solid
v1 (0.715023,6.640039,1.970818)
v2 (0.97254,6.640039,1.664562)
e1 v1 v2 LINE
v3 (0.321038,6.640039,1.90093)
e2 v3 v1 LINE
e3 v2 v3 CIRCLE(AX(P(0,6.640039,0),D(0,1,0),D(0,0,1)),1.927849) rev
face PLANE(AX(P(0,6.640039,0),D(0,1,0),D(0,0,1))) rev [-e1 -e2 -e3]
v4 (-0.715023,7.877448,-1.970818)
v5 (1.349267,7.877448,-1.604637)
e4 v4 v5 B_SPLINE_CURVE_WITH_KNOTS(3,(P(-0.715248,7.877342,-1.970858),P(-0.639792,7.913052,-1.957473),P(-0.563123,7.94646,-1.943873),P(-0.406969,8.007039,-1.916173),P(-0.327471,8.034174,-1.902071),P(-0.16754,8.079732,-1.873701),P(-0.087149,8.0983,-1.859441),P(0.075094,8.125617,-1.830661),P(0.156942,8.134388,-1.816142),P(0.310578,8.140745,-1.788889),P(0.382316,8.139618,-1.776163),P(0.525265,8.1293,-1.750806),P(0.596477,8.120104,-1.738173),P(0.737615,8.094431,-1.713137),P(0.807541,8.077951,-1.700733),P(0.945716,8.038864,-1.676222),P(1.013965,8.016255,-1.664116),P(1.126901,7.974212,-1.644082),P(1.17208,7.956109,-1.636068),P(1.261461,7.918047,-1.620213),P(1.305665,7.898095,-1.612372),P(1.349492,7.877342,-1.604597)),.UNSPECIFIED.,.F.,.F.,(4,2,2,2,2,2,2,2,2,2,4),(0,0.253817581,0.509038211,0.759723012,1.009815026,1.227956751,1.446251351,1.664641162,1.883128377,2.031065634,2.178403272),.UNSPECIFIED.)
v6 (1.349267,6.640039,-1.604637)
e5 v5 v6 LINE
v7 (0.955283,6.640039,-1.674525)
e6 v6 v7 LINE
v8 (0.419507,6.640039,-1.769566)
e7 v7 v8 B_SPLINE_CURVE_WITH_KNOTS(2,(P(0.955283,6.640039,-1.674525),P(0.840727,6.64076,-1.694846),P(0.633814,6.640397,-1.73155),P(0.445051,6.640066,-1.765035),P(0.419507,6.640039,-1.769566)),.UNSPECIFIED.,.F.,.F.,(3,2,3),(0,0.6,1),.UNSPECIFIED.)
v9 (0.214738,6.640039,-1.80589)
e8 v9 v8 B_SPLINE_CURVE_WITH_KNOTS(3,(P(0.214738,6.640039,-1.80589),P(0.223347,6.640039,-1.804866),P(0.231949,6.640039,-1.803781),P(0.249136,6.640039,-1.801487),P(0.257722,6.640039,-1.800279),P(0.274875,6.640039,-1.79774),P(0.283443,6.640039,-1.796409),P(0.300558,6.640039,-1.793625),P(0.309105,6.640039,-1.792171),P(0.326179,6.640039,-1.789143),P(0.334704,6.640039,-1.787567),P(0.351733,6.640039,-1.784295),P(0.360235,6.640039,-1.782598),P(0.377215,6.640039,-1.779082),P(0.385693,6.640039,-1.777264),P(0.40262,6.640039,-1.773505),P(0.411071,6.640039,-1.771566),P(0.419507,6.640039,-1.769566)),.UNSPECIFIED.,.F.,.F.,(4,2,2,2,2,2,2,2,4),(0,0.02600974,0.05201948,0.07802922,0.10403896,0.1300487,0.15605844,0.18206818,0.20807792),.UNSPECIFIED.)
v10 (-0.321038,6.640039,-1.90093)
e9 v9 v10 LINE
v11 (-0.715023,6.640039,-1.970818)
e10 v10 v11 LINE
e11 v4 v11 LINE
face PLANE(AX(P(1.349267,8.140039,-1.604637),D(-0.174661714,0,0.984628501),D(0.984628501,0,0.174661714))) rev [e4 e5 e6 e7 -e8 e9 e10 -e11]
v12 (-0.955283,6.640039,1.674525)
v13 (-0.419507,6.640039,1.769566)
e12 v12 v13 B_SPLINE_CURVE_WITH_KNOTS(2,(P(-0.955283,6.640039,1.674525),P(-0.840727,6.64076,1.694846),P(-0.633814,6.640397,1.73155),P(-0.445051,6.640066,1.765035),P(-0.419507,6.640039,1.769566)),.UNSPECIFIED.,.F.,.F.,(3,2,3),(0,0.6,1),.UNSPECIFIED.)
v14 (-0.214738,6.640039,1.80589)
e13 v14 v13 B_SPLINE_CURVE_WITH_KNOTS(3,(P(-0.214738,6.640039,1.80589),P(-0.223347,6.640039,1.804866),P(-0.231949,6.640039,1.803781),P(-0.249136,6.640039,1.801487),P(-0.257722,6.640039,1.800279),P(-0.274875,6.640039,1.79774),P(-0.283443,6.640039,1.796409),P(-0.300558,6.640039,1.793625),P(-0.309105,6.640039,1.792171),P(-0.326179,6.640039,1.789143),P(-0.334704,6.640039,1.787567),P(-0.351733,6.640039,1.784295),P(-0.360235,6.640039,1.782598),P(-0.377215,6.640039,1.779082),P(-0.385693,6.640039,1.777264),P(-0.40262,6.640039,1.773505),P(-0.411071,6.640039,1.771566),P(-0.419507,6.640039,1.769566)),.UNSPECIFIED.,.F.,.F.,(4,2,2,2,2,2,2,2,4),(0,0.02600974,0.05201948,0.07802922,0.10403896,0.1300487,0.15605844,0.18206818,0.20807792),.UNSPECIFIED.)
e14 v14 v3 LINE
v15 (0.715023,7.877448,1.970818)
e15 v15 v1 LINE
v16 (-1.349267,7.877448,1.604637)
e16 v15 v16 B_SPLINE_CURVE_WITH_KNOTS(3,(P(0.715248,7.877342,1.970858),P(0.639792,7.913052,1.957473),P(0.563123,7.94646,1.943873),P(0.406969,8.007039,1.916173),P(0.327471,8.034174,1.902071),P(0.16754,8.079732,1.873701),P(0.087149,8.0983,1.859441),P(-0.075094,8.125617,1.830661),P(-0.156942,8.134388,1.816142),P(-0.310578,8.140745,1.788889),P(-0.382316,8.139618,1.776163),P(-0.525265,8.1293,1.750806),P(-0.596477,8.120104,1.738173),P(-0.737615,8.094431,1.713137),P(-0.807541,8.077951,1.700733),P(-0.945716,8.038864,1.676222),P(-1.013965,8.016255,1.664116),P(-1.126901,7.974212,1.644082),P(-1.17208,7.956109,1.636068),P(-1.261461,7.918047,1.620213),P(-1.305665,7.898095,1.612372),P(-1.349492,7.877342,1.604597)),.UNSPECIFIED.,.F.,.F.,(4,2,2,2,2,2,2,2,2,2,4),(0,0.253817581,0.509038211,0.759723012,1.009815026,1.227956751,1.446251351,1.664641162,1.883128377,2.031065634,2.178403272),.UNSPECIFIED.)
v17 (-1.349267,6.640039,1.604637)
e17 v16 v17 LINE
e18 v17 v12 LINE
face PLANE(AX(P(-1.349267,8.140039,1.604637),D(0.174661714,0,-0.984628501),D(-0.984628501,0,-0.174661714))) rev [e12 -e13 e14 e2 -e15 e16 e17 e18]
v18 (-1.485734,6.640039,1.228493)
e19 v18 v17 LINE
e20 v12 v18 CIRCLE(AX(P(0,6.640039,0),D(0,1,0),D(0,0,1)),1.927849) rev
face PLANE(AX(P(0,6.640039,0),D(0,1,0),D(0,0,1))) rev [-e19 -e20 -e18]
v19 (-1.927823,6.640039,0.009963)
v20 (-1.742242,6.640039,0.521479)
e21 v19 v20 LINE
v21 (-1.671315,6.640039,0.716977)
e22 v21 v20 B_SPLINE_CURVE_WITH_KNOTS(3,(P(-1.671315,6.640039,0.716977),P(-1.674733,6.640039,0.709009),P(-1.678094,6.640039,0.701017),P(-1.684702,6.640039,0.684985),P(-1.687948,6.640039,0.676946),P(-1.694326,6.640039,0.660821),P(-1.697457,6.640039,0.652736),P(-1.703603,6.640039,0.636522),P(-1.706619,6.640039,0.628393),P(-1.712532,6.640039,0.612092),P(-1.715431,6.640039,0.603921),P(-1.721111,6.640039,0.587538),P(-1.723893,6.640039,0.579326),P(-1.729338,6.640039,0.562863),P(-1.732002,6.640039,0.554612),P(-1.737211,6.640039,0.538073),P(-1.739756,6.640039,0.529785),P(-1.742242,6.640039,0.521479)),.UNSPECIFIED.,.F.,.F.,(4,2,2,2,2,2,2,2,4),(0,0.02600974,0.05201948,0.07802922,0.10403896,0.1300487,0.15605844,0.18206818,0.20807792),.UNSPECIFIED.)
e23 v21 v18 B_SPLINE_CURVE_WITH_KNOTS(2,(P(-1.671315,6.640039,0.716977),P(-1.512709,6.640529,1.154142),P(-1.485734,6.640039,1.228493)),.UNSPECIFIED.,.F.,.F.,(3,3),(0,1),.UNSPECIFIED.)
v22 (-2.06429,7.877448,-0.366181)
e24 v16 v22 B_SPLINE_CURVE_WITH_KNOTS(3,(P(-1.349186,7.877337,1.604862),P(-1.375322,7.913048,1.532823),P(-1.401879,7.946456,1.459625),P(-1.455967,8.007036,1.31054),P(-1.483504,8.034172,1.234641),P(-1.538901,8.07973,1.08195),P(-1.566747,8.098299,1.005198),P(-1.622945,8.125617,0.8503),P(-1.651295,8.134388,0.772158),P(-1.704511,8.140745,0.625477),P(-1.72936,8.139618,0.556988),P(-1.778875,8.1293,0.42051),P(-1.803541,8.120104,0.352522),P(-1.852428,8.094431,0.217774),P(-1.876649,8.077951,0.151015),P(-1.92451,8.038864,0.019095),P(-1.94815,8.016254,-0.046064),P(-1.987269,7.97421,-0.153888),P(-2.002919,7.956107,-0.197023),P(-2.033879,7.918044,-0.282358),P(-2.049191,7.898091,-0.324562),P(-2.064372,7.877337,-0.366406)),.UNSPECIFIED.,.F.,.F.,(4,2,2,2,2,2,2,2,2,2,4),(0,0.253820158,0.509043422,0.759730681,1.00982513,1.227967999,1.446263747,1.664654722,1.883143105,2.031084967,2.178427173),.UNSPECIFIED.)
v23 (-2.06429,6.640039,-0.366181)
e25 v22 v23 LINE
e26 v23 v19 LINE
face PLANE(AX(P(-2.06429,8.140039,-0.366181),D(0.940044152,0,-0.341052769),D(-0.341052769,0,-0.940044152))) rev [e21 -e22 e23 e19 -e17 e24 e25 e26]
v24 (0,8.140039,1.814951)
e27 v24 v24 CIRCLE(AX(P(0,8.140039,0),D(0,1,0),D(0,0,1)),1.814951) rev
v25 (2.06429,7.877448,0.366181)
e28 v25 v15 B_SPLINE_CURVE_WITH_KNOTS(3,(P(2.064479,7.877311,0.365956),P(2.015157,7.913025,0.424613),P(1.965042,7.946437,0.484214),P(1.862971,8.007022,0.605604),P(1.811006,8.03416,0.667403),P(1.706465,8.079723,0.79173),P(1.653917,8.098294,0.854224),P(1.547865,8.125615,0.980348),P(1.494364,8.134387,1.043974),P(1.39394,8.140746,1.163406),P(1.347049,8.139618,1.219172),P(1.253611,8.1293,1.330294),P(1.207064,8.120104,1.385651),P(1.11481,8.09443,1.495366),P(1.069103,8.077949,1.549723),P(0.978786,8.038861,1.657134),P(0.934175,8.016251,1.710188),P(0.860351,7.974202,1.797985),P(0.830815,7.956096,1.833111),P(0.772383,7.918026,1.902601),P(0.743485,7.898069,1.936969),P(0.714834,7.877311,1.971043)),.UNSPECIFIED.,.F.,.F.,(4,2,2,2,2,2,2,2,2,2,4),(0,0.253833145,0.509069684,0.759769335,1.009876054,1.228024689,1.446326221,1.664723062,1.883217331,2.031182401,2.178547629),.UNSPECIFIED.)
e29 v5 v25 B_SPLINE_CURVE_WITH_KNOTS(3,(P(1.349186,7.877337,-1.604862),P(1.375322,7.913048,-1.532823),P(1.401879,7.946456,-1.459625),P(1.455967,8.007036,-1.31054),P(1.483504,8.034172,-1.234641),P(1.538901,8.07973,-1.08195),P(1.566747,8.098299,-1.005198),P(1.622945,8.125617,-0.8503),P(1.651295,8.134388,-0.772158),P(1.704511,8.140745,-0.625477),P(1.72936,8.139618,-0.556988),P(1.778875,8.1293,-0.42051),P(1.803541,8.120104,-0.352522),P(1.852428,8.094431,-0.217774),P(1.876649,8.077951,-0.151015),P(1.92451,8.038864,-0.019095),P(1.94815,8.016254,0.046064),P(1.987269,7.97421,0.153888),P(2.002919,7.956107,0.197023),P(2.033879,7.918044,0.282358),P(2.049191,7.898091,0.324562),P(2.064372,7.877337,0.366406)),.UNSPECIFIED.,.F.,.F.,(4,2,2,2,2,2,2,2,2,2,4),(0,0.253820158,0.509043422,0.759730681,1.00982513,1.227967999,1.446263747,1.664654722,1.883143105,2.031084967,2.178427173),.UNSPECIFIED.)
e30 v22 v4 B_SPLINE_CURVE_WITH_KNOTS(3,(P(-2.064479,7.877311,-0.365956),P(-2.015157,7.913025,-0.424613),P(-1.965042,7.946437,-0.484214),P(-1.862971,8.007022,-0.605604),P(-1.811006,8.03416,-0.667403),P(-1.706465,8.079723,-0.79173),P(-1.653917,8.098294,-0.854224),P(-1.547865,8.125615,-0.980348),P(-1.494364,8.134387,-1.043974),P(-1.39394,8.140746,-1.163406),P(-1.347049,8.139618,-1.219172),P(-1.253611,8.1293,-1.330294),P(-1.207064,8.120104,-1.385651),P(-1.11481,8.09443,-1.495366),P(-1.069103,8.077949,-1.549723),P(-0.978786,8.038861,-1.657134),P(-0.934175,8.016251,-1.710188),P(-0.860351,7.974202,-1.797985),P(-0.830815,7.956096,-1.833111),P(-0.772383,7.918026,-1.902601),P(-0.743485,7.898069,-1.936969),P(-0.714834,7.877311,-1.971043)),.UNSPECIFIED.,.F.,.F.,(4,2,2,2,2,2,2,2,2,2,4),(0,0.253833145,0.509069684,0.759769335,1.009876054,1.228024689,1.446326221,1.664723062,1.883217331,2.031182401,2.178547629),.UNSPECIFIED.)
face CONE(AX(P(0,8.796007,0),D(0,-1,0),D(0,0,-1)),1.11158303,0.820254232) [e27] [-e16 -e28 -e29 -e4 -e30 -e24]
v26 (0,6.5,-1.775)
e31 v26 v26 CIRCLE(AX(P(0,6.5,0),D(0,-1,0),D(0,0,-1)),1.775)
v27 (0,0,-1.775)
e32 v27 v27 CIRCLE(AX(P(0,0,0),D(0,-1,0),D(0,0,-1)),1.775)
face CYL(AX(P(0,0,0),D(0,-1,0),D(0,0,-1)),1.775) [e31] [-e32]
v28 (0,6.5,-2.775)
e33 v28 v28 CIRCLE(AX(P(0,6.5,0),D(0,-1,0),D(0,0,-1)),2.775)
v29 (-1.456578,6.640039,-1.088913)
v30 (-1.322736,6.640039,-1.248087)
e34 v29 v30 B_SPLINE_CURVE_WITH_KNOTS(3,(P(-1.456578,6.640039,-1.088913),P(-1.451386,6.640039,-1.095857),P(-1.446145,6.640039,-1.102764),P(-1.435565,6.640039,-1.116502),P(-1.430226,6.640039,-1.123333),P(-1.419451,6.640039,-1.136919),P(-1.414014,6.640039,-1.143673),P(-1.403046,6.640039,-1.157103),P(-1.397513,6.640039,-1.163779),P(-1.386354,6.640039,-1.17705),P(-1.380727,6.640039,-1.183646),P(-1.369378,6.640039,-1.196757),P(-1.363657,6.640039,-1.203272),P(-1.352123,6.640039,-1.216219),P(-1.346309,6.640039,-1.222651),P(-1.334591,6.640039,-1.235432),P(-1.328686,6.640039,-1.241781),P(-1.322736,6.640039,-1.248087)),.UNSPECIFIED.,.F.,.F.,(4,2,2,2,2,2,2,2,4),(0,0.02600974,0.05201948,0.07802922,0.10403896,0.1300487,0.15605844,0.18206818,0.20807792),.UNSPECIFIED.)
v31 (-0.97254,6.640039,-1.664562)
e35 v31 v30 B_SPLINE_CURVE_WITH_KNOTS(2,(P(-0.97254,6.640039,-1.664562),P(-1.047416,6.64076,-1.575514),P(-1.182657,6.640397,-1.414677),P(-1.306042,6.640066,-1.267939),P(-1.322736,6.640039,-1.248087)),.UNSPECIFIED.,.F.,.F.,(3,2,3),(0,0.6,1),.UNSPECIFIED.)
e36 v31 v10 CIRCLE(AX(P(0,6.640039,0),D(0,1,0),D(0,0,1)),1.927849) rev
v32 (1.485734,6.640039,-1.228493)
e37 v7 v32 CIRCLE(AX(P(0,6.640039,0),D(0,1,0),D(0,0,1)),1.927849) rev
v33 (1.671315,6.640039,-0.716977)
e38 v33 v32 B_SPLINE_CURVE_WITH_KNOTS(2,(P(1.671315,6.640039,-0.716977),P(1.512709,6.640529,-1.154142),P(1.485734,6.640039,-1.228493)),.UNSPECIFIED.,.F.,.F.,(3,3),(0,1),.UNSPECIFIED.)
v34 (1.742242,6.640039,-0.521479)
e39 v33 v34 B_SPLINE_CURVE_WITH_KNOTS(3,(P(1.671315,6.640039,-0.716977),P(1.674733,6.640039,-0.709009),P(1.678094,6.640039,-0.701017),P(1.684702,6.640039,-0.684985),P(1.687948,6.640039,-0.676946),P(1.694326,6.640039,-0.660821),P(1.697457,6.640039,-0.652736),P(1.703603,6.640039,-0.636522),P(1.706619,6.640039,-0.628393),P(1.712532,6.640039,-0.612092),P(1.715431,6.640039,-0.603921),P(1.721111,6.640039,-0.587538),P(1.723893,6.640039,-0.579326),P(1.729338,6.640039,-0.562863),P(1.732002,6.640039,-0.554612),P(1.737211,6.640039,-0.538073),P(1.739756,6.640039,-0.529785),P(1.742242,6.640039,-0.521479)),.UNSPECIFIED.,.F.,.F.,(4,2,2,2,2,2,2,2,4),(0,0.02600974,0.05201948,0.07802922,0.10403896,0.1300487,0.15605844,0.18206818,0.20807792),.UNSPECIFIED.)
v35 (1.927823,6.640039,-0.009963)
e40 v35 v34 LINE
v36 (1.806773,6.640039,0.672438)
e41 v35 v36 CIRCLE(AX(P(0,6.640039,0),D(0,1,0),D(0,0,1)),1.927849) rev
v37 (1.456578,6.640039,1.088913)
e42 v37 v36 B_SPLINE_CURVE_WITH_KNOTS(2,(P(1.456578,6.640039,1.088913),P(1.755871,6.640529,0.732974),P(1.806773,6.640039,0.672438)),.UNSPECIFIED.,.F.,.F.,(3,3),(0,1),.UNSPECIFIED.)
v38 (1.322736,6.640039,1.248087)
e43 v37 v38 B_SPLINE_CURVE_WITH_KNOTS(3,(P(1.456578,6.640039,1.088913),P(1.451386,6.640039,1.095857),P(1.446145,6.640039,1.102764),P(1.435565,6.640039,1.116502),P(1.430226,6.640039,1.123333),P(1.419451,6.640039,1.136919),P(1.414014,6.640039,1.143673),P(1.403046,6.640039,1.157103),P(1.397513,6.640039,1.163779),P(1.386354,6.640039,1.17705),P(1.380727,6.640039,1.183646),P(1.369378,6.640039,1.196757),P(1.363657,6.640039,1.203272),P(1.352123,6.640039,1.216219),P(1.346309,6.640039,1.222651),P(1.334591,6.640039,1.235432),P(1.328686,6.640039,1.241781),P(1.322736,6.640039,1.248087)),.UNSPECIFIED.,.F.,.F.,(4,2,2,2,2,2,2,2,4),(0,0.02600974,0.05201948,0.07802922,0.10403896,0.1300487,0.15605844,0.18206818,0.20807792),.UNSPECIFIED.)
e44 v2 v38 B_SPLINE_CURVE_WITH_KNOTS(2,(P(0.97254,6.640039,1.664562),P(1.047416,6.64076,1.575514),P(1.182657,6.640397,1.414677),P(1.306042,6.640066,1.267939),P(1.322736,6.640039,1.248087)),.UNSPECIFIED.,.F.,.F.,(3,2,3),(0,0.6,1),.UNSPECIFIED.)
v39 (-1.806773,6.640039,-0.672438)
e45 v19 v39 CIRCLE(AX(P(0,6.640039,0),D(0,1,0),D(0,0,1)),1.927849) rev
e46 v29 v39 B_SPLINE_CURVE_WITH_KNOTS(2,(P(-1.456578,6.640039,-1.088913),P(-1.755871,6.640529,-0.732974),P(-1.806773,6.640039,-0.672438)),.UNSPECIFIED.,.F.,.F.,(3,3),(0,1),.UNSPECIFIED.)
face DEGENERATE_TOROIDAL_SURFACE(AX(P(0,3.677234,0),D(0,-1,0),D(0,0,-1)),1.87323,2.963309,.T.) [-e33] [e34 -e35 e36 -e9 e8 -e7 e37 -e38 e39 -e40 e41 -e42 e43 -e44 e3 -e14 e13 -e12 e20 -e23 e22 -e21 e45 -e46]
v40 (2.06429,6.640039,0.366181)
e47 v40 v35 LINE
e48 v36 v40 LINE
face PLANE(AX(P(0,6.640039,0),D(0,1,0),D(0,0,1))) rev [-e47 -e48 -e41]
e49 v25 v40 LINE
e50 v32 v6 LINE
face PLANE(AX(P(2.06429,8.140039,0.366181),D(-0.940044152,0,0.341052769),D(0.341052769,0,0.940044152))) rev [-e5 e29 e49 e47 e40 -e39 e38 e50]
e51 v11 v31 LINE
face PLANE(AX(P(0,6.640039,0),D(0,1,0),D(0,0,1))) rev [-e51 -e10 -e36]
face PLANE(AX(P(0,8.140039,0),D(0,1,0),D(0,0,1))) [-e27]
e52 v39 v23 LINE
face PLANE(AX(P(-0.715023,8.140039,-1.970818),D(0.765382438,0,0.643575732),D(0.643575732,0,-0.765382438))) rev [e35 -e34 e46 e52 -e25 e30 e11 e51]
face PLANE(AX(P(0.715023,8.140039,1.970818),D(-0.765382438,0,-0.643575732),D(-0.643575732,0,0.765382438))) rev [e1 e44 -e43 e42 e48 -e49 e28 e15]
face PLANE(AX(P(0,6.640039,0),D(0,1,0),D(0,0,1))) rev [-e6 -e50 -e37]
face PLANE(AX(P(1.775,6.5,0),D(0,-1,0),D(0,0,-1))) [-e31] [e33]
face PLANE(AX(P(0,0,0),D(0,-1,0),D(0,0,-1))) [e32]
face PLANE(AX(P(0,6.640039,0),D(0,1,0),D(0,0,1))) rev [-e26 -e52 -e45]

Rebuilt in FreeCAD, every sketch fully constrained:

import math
import FreeCAD as App
import Part
import Sketcher

doc = App.newDocument("Part")
body = doc.addObject("PartDesign::Body", "Body")

# Sketch on XY plane
sketch1 = body.newObject("Sketcher::SketchObject", "Sketch")
sketch1.AttachmentSupport = (doc.getObject("XY_Plane"), [""])
sketch1.MapMode = "FlatFace"
sketch1.addGeometry([
    Part.LineSegment(App.Vector(0, 0, 0), App.Vector(1.775, 0, 0)),  # 0
    Part.LineSegment(App.Vector(1.775, 0, 0), App.Vector(1.775, 6.5, 0)),  # 1
    Part.LineSegment(App.Vector(1.775, 6.5, 0), App.Vector(2.775, 6.5, 0)),  # 2
    Part.ArcOfCircle(Part.Circle(App.Vector(1.87323, 3.677234, 0), App.Vector(0, 0, 1), 2.963309), math.radians(72.283238), math.radians(91.05611)),  # 3
    Part.LineSegment(App.Vector(1.818612, 6.640039, 0), App.Vector(0, 6.640039, 0)),  # 4
    Part.LineSegment(App.Vector(0, 6.640039, 0), App.Vector(0, 0, 0)),  # 5
], False)
sketch1.addConstraint([
    Sketcher.Constraint("Coincident", 0, 2, 1, 1),
    Sketcher.Constraint("Coincident", 1, 2, 2, 1),
    Sketcher.Constraint("Coincident", 2, 2, 3, 1),
    Sketcher.Constraint("Coincident", 3, 2, 4, 1),
    Sketcher.Constraint("Coincident", 4, 2, 5, 1),
    Sketcher.Constraint("Coincident", 5, 2, 0, 1),
    Sketcher.Constraint("Horizontal", 0),
    Sketcher.Constraint("Vertical", 1),
    Sketcher.Constraint("Horizontal", 2),
    Sketcher.Constraint("Horizontal", 4),
    Sketcher.Constraint("Vertical", 5),
    Sketcher.Constraint("Coincident", 5, 2, -1, 1),
    Sketcher.Constraint("DistanceX", 2, 1, 2, 2, 1.0),
    Sketcher.Constraint("DistanceY", 1, 1, 1, 2, 6.5),
    Sketcher.Constraint("DistanceX", 0, 1, 0, 2, 1.775),
    Sketcher.Constraint("Radius", 3, 2.963309),
    Sketcher.Constraint("DistanceX", 4, 2, 4, 1, 1.818612),
    Sketcher.Constraint("DistanceY", 5, 2, 5, 1, 6.640039),
])
revolution = body.newObject("PartDesign::Revolution", "Revolution")
revolution.Profile = sketch1
revolution.ReferenceAxis = (sketch1, ["V_Axis"])
revolution.Angle = 360

# Sketch on XZ plane
sketch2 = body.newObject("Sketcher::SketchObject", "Sketch001")
sketch2.AttachmentSupport = (doc.getObject("XZ_Plane"), [""])
sketch2.MapMode = "FlatFace"
sketch2.AttachmentOffset = App.Placement(App.Vector(0, 0, -6.640039), App.Rotation())
sketch2.addGeometry([
    Part.LineSegment(App.Vector(1.349267, -1.604637, 0), App.Vector(-0.715023, -1.970818, 0)),  # 0
    Part.LineSegment(App.Vector(-0.715023, -1.970818, 0), App.Vector(-2.06429, -0.366181, 0)),  # 1
    Part.LineSegment(App.Vector(-2.06429, -0.366181, 0), App.Vector(-1.349267, 1.604637, 0)),  # 2
    Part.LineSegment(App.Vector(-1.349267, 1.604637, 0), App.Vector(0.715023, 1.970818, 0)),  # 3
    Part.LineSegment(App.Vector(0.715023, 1.970818, 0), App.Vector(2.06429, 0.366181, 0)),  # 4
    Part.LineSegment(App.Vector(2.06429, 0.366181, 0), App.Vector(1.349267, -1.604637, 0)),  # 5
], False)
sketch2.addConstraint([
    Sketcher.Constraint("Coincident", 0, 2, 1, 1),
    Sketcher.Constraint("Coincident", 1, 2, 2, 1),
    Sketcher.Constraint("Coincident", 2, 2, 3, 1),
    Sketcher.Constraint("Coincident", 3, 2, 4, 1),
    Sketcher.Constraint("Coincident", 4, 2, 5, 1),
    Sketcher.Constraint("Coincident", 5, 2, 0, 1),
    Sketcher.Constraint("Symmetric", 0, 2, 3, 2, -1, 1),
    Sketcher.Constraint("Symmetric", 1, 2, 4, 2, -1, 1),
    Sketcher.Constraint("Symmetric", 2, 2, 5, 2, -1, 1),
    Sketcher.Constraint("Equal", 0, 1),
    Sketcher.Constraint("Equal", 1, 2),
    Sketcher.Constraint("DistanceY", 1, 2, 3, 2, 2.337),
    Sketcher.Constraint("DistanceY", 0, 2, -1, 1, 1.970818),
    Sketcher.Constraint("DistanceX", 1, 2, -1, 1, 2.06429),
    Sketcher.Constraint("DistanceY", 1, 2, 2, 2, 1.970818),
])
pad1 = body.newObject("PartDesign::Pad", "Pad")
pad1.Profile = sketch2
pad1.Length = 1.5
pad1.Reversed = True

# Sketch on XY plane
sketch3 = body.newObject("Sketcher::SketchObject", "Sketch002")
sketch3.AttachmentSupport = (doc.getObject("XY_Plane"), [""])
sketch3.MapMode = "FlatFace"
sketch3.addGeometry([
    Part.LineSegment(App.Vector(1.111583, 8.796007, 0), App.Vector(2.422382, 7.573543, 0)),
    Part.LineSegment(App.Vector(2.422382, 7.573543, 0), App.Vector(2.422382, 8.796007, 0)),
    Part.LineSegment(App.Vector(2.422382, 8.796007, 0), App.Vector(1.111583, 8.796007, 0)),
], False)
sketch3.addConstraint([
    Sketcher.Constraint("Coincident", 0, 2, 1, 1),
    Sketcher.Constraint("Coincident", 1, 2, 2, 1),
    Sketcher.Constraint("Coincident", 2, 2, 0, 1),
    Sketcher.Constraint("Vertical", 1),
    Sketcher.Constraint("Horizontal", 2),
    Sketcher.Constraint("DistanceX", 2, 2, 2, 1, 1.310799),
    Sketcher.Constraint("DistanceY", 1, 1, 1, 2, 1.222464),
    Sketcher.Constraint("DistanceX", -1, 1, 0, 2, 2.422382),
    Sketcher.Constraint("DistanceY", -1, 1, 0, 2, 7.573543),
])
groove = body.newObject("PartDesign::Groove", "Groove")
groove.Profile = sketch3
groove.ReferenceAxis = (sketch3, ["V_Axis"])
groove.Angle = 360

doc.recompute()
